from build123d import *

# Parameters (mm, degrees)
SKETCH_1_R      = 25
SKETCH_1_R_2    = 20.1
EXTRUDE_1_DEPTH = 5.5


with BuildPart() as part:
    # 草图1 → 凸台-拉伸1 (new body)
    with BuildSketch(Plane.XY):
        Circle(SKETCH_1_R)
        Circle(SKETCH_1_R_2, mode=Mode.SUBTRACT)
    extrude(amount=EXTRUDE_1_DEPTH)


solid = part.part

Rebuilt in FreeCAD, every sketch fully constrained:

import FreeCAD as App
import Part
import Sketcher

V = App.Vector
Q = App.Units.Quantity

doc = App.newDocument("Part")
body = doc.addObject("PartDesign::Body", "Body")

# Sketch on XY plane
sketch1 = body.newObject("Sketcher::SketchObject", "Sketch")
sketch1.AttachmentSupport = (doc.getObject("XY_Plane"), [""])
sketch1.MapMode = "FlatFace"
sketch1.addGeometry([
    Part.Circle(V(0, 0, 0), V(0, 0, 1), 25),
    Part.Circle(V(0, 0, 0), V(0, 0, 1), 20),
], False)
sketch1.addConstraint([
    Sketcher.Constraint("Coincident", 0, 3, -1, 1),
    Sketcher.Constraint("Coincident", 1, 3, -1, 1),
    Sketcher.Constraint("Diameter", 0, Q("50 mm")),
    Sketcher.Constraint("Diameter", 1, Q("40.2 mm")),
])
pad1 = body.newObject("PartDesign::Pad", "Pad")
pad1.Profile = sketch1
pad1.Length = 5.5

doc.recompute()
